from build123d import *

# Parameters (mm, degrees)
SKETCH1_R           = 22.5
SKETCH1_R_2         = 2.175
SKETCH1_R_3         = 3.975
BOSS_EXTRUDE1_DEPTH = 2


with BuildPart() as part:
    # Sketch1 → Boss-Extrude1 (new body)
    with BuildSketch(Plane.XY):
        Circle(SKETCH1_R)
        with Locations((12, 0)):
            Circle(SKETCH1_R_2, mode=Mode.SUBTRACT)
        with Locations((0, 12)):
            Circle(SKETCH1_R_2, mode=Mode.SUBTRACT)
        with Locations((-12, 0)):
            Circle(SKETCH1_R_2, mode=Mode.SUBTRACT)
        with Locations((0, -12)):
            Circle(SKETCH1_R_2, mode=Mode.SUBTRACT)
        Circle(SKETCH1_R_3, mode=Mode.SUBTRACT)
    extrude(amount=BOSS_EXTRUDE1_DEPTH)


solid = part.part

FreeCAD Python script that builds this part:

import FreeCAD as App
import Part
import Sketcher

V = App.Vector

doc = App.newDocument("Part")
body = doc.addObject("PartDesign::Body", "Body")

sketch1 = body.newObject("Sketcher::SketchObject", "Sketch")
sketch1.AttachmentSupport = (doc.getObject("XY_Plane"), [""])
sketch1.MapMode = "FlatFace"
sketch1.addGeometry([
    Part.Circle(V(0, 0, 0), V(0, 0, 1), 22.5),
    Part.Circle(V(0, -12, 0), V(0, 0, 1), 2.2),
    Part.Circle(V(-12, 0, 0), V(0, 0, 1), 2.2),
    Part.Circle(V(0, 0, 0), V(0, 0, 1), 4),
    Part.Circle(V(12, 0, 0), V(0, 0, 1), 2.2),
    Part.Circle(V(0, 12, 0), V(0, 0, 1), 2.2),
], False)
sketch1.addConstraint([
    Sketcher.Constraint("Coincident", 0, 3, -1, 1),
    Sketcher.Constraint("Coincident", 3, 3, -1, 1),
    Sketcher.Constraint("Equal", 1, 2),
    Sketcher.Constraint("Equal", 2, 4),
    Sketcher.Constraint("Equal", 4, 5),
    Sketcher.Constraint("Symmetric", 2, 3, 4, 3, -1, 1),
    Sketcher.Constraint("Symmetric", 1, 3, 5, 3, -1, 1),
    Sketcher.Constraint("PointOnObject", 1, 3, -2),
    Sketcher.Constraint("PointOnObject", 2, 3, -1),
    Sketcher.Constraint("Diameter", 0, 45.0),
    Sketcher.Constraint("Diameter", 1, 4.35),
    Sketcher.Constraint("Diameter", 3, 7.95),
    Sketcher.Constraint("DistanceY", 1, 3, -1, 1, 12.0),
    Sketcher.Constraint("DistanceX", 2, 3, -1, 1, 12.0),
])
pad1 = body.newObject("PartDesign::Pad", "Pad")
pad1.Profile = sketch1
pad1.Length = 2

doc.recompute()
